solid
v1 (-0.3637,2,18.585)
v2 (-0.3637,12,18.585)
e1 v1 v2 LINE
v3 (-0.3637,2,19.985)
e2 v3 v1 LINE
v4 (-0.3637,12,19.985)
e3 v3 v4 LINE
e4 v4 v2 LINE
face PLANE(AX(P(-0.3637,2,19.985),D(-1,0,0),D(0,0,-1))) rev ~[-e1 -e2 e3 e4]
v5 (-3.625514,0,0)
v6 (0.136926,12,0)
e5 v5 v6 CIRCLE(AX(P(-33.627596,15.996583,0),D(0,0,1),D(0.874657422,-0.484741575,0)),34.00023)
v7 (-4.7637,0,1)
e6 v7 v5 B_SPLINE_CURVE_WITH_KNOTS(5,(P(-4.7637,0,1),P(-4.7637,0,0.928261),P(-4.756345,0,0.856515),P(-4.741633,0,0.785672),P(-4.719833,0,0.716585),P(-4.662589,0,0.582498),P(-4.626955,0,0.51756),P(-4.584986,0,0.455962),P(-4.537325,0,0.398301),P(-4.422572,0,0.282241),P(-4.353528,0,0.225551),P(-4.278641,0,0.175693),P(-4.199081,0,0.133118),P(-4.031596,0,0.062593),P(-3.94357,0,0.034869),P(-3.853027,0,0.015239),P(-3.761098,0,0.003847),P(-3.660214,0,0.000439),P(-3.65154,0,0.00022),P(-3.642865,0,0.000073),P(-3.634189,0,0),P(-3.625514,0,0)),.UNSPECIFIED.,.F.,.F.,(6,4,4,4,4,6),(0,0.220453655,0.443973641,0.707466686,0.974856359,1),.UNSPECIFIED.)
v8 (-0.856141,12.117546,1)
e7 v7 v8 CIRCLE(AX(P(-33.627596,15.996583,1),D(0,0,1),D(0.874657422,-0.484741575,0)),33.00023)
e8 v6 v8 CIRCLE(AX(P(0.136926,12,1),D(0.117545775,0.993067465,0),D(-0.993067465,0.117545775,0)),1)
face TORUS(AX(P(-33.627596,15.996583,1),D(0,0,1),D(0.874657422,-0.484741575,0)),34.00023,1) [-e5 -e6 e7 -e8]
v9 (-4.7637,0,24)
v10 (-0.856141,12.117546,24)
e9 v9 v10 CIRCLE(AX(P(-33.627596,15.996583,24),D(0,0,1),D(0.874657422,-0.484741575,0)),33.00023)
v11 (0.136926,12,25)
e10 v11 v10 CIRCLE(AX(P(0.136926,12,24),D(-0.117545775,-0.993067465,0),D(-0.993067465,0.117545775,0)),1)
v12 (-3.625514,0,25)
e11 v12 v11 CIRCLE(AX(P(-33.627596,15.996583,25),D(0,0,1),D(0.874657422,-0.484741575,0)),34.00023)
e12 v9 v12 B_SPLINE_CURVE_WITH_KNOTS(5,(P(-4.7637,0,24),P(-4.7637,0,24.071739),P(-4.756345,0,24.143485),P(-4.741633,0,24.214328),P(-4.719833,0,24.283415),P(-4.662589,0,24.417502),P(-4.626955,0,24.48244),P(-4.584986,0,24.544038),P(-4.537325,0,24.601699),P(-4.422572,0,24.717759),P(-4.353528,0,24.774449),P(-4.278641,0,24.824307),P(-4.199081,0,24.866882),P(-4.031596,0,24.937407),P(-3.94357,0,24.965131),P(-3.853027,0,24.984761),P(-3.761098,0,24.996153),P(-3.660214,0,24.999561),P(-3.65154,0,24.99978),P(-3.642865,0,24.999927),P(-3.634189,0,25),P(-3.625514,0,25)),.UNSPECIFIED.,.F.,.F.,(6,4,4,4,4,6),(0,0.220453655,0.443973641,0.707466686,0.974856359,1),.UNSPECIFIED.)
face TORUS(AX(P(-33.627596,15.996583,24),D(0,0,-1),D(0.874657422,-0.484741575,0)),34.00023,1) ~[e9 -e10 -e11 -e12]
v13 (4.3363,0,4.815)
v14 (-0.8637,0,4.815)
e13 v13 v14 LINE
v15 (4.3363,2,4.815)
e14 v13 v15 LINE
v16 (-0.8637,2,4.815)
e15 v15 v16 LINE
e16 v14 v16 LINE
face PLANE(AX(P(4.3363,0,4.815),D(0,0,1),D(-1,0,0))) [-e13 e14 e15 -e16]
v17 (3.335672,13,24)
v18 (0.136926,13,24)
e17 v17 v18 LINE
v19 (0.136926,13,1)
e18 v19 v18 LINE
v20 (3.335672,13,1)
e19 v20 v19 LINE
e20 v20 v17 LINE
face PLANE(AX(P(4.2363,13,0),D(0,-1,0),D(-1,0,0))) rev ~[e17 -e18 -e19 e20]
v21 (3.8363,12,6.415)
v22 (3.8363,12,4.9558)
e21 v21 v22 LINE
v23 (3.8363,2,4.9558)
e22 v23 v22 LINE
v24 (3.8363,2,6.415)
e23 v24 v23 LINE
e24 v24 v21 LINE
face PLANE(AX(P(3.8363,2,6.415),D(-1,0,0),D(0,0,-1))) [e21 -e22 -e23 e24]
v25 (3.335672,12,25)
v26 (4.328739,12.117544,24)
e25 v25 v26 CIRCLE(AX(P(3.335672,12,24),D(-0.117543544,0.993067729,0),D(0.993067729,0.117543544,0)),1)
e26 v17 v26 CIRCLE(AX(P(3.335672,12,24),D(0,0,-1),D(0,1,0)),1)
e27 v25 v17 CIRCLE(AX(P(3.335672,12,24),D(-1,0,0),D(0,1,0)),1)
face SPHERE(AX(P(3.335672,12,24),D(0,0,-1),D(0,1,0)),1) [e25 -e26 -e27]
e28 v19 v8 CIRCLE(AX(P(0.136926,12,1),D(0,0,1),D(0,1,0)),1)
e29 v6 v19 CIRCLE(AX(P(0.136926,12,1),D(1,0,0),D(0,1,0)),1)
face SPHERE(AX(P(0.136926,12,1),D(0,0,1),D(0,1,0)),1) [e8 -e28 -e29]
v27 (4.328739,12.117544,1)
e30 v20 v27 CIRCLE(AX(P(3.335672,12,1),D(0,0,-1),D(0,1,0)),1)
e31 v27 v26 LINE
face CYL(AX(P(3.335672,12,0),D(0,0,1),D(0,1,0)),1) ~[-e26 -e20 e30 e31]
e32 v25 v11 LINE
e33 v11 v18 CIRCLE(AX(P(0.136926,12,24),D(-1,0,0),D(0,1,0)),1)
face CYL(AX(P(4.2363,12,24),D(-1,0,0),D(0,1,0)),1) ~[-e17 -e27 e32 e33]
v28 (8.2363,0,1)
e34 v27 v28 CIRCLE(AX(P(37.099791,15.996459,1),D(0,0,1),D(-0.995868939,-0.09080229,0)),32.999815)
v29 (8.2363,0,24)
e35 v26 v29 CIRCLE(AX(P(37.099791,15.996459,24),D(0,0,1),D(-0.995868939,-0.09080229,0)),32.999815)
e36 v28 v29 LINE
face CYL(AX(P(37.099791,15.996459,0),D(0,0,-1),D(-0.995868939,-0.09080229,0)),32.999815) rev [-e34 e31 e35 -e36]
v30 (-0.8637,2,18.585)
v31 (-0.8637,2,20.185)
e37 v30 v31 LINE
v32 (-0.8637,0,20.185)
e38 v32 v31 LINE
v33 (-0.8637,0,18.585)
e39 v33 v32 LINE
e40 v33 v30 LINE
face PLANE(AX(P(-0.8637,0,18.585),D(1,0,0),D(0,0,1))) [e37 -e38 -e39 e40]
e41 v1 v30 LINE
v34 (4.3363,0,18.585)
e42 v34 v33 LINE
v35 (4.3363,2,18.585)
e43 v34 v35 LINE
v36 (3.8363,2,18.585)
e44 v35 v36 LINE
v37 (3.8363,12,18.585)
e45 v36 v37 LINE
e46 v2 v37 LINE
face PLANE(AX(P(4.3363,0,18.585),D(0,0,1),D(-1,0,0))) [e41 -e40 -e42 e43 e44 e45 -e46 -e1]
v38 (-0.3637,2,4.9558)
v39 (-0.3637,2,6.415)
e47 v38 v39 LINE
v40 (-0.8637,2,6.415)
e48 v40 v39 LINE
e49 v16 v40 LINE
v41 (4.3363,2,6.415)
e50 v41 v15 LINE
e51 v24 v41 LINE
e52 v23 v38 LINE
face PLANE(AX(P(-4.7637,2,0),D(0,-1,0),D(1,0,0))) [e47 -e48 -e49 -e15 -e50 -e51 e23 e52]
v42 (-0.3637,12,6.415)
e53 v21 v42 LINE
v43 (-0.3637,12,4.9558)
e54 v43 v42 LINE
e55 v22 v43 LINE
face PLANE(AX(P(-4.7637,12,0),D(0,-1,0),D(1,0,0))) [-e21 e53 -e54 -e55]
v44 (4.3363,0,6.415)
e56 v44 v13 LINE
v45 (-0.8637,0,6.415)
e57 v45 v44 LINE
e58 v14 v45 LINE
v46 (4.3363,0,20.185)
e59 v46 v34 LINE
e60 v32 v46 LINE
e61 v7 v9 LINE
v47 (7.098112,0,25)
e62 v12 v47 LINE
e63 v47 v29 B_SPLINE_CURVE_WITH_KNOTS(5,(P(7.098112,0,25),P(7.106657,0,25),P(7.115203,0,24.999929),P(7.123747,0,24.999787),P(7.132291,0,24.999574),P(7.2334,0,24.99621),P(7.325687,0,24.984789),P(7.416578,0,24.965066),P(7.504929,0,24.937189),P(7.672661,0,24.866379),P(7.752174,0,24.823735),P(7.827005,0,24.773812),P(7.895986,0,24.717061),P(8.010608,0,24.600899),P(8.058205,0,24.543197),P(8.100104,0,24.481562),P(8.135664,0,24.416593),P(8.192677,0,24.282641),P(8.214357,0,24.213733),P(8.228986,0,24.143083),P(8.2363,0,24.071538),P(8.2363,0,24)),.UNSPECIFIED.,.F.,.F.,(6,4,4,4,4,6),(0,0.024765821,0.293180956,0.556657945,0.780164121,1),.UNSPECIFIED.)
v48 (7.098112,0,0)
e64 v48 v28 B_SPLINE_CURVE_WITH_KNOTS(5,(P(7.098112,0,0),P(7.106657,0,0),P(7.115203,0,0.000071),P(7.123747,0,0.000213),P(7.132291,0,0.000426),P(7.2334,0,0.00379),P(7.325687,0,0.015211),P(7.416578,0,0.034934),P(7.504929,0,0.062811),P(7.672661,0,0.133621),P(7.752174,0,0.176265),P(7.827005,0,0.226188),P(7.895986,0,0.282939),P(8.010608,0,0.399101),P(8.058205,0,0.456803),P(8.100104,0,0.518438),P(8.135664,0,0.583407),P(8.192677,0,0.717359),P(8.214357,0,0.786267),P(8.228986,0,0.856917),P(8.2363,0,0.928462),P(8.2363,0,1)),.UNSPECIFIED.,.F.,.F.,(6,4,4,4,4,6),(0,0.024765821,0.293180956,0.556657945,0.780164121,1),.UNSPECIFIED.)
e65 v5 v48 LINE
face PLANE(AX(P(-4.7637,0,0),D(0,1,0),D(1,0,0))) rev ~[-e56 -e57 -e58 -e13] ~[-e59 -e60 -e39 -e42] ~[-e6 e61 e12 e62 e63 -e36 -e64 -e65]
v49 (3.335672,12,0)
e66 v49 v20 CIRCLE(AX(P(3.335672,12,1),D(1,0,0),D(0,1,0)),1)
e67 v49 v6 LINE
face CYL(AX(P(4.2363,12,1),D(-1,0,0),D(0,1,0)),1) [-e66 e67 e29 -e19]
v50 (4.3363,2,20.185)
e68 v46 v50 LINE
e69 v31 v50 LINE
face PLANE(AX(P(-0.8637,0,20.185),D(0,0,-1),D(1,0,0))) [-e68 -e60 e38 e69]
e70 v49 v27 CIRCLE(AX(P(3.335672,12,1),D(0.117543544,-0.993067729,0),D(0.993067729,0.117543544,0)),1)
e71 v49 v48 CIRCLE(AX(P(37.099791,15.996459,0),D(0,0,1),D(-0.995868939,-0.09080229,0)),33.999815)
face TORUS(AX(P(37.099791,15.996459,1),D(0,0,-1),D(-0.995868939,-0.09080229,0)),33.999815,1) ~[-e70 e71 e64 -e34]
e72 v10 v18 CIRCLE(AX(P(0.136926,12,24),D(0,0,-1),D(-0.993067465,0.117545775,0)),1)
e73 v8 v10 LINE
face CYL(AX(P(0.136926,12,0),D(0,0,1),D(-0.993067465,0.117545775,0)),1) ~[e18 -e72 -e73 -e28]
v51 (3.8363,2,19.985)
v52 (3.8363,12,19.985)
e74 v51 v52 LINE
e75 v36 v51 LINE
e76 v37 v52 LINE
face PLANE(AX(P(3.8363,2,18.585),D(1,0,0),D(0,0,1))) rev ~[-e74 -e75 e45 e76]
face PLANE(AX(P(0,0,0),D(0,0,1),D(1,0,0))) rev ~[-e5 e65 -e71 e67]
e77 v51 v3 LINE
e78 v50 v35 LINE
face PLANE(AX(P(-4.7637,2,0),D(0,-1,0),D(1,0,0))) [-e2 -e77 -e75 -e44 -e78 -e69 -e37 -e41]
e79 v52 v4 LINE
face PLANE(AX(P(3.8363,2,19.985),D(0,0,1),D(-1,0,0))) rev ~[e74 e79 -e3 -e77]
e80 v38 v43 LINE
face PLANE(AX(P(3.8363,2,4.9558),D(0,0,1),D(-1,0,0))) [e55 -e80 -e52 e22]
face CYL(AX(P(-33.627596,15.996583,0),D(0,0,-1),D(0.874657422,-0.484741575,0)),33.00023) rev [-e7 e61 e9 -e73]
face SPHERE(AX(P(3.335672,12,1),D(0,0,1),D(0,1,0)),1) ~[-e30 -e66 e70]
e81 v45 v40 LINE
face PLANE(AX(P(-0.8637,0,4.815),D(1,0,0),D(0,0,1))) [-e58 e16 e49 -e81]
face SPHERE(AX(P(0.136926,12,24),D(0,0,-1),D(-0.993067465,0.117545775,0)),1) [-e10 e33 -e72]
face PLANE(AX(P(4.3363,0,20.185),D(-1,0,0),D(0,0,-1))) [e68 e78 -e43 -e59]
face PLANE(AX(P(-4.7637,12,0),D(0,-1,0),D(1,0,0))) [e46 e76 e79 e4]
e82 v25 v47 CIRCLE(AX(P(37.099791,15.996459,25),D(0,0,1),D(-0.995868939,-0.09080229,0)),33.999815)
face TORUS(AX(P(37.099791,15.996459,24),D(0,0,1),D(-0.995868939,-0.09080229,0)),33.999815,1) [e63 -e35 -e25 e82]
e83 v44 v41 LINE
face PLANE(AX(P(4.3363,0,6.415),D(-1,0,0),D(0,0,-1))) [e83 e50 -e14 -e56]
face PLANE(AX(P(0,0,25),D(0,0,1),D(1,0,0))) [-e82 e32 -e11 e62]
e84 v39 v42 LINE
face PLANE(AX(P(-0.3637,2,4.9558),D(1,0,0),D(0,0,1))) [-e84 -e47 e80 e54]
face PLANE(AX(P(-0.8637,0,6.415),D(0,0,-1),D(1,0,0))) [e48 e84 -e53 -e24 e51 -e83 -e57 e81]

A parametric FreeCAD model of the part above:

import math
import FreeCAD as App
import Part
import Sketcher

V = App.Vector
Q = App.Units.Quantity


def edges_at(feature, points):
    """Names of the edges that pass closest to the given points."""
    edges = feature.Shape.Edges
    near = lambda p: min(range(len(edges)), key=lambda i: edges[i].distToShape(Part.Vertex(*p))[0])
    return sorted({f"Edge{near(p) + 1}" for p in points})

doc = App.newDocument("Part")
body = doc.addObject("PartDesign::Body", "Body")

sketch1 = doc.addObject("Sketcher::SketchObject", "Sketch")
body.addObject(sketch1)
sketch1.AttachmentSupport = (doc.XY_Plane, [""])
sketch1.MapMode = "FlatFace"
sketch1.addGeometry([
    Part.ArcOfCircle(Part.Circle(V(-34, 16, 0), V(0, 0, 1), 33), math.radians(-29), math.radians(-5)),
    Part.LineSegment(V(-5, 0, 0), V(8, 0, 0)),
    Part.ArcOfCircle(Part.Circle(V(37, 16, 0), V(0, 0, 1), 33), math.radians(-175), math.radians(-151)),
    Part.LineSegment(V(4, 13, 0), V(-1, 13, 0)),
], False)
sketch1.addConstraint([
    Sketcher.Constraint("Coincident", 0, 1, 1, 1),
    Sketcher.Constraint("Coincident", 1, 2, 2, 2),
    Sketcher.Constraint("Coincident", 2, 1, 3, 1),
    Sketcher.Constraint("Coincident", 3, 2, 0, 2),
    Sketcher.Constraint("Horizontal", 1),
    Sketcher.Constraint("Horizontal", 3),
    Sketcher.Constraint("Equal", 0, 2),
    Sketcher.Constraint("PointOnObject", 0, 1, -1),
    Sketcher.Constraint("Horizontal", 0, 3, 2, 3),
    Sketcher.Constraint("Radius", 0, Q("33 mm")),
    Sketcher.Constraint("DistanceX", 1, 1, 1, 2, Q("13 mm")),
    Sketcher.Constraint("DistanceY", -1, 1, 2, 1, Q("13 mm")),
    Sketcher.Constraint("DistanceX", 2, 1, 1, 2, Q("4 mm")),
    Sketcher.Constraint("DistanceX", -1, 1, 2, 3, Q("37.1 mm")),
])
pad1 = doc.addObject("PartDesign::Pad", "Pad")
body.addObject(pad1)
pad1.Profile = sketch1
pad1.Length = 25

sketch2 = doc.addObject("Sketcher::SketchObject", "Sketch001")
body.addObject(sketch2)
sketch2.AttachmentSupport = (doc.XZ_Plane, [""])
sketch2.MapMode = "FlatFace"
sketch2.addGeometry([
    Part.LineSegment(V(4.3, 20.2, 0), V(-0.9, 20.2, 0)),
    Part.LineSegment(V(-0.9, 20.2, 0), V(-0.9, 18.6, 0)),
    Part.LineSegment(V(-0.9, 18.6, 0), V(4.3, 18.6, 0)),
    Part.LineSegment(V(4.3, 18.6, 0), V(4.3, 20.2, 0)),
    Part.LineSegment(V(4.3, 6.4, 0), V(-0.9, 6.4, 0)),
    Part.LineSegment(V(-0.9, 6.4, 0), V(-0.9, 4.8, 0)),
    Part.LineSegment(V(-0.9, 4.8, 0), V(4.3, 4.8, 0)),
    Part.LineSegment(V(4.3, 4.8, 0), V(4.3, 6.4, 0)),
], False)
sketch2.addConstraint([
    Sketcher.Constraint("Coincident", 0, 2, 1, 1),
    Sketcher.Constraint("Coincident", 1, 2, 2, 1),
    Sketcher.Constraint("Coincident", 2, 2, 3, 1),
    Sketcher.Constraint("Coincident", 3, 2, 0, 1),
    Sketcher.Constraint("Coincident", 4, 2, 5, 1),
    Sketcher.Constraint("Coincident", 5, 2, 6, 1),
    Sketcher.Constraint("Coincident", 6, 2, 7, 1),
    Sketcher.Constraint("Coincident", 7, 2, 4, 1),
    Sketcher.Constraint("Horizontal", 0),
    Sketcher.Constraint("Vertical", 1),
    Sketcher.Constraint("Horizontal", 2),
    Sketcher.Constraint("Vertical", 3),
    Sketcher.Constraint("Horizontal", 4),
    Sketcher.Constraint("Vertical", 5),
    Sketcher.Constraint("Horizontal", 6),
    Sketcher.Constraint("Vertical", 7),
    Sketcher.Constraint("Vertical", 1, 2, 4, 2),
    Sketcher.Constraint("Vertical", 3, 2, 6, 2),
    Sketcher.Constraint("Equal", 3, 5),
    Sketcher.Constraint("DistanceX", 0, 2, 0, 1, Q("5.2 mm")),
    Sketcher.Constraint("DistanceY", 1, 2, 1, 1, Q("1.6 mm")),
    Sketcher.Constraint("DistanceY", 5, 2, 0, 2, Q("15.37 mm")),
    Sketcher.Constraint("DistanceY", -1, 1, 5, 2, Q("4.815 mm")),
    Sketcher.Constraint("DistanceX", 0, 2, -1, 1, Q("0.8637 mm")),
])
pocket1 = doc.addObject("PartDesign::Pocket", "Pocket")
body.addObject(pocket1)
pocket1.Profile = sketch2
pocket1.Length = 2
doc.recompute()

fillet = doc.addObject("PartDesign::Fillet", "Fillet")
body.addObject(fillet)
fillet.Base = (pocket1, edges_at(pocket1, [
    (4.236, 13, 12.5),
    (1.736, 13, 25),
    (-0.764, 13, 12.5),
    (1.736, 13, 0),
    (5.559, 6.292, 25),
    (-2.087, 6.292, 25),
    (5.559, 6.292, 0),
    (-2.087, 6.292, 0),
]))
fillet.Radius = 1

sketch3 = doc.addObject("Sketcher::SketchObject", "Sketch002")
body.addObject(sketch3)
sketch3.AttachmentSupport = (doc.XZ_Plane, [""])
sketch3.MapMode = "FlatFace"
sketch3.AttachmentOffset = App.Placement(V(0, 0, -2), App.Rotation())
sketch3.addGeometry([
    Part.LineSegment(V(-0.4, 20, 0), V(-0.4, 18.6, 0)),
    Part.LineSegment(V(-0.4, 18.6, 0), V(3.8, 18.6, 0)),
    Part.LineSegment(V(3.8, 18.6, 0), V(3.8, 20, 0)),
    Part.LineSegment(V(3.8, 20, 0), V(-0.4, 20, 0)),
    Part.LineSegment(V(3.8, 5, 0), V(3.8, 6.4, 0)),
    Part.LineSegment(V(3.8, 6.4, 0), V(-0.4, 6.4, 0)),
    Part.LineSegment(V(-0.4, 6.4, 0), V(-0.4, 5, 0)),
    Part.LineSegment(V(-0.4, 5, 0), V(3.8, 5, 0)),
], False)
sketch3.addConstraint([
    Sketcher.Constraint("Coincident", 0, 2, 1, 1),
    Sketcher.Constraint("Coincident", 1, 2, 2, 1),
    Sketcher.Constraint("Coincident", 2, 2, 3, 1),
    Sketcher.Constraint("Coincident", 3, 2, 0, 1),
    Sketcher.Constraint("Coincident", 4, 2, 5, 1),
    Sketcher.Constraint("Coincident", 5, 2, 6, 1),
    Sketcher.Constraint("Coincident", 6, 2, 7, 1),
    Sketcher.Constraint("Coincident", 7, 2, 4, 1),
    Sketcher.Constraint("Vertical", 0),
    Sketcher.Constraint("Horizontal", 1),
    Sketcher.Constraint("Vertical", 2),
    Sketcher.Constraint("Horizontal", 3),
    Sketcher.Constraint("Vertical", 4),
    Sketcher.Constraint("Horizontal", 5),
    Sketcher.Constraint("Vertical", 6),
    Sketcher.Constraint("Horizontal", 7),
    Sketcher.Constraint("Vertical", 2, 2, 4, 2),
    Sketcher.Constraint("Vertical", 3, 2, 5, 2),
    Sketcher.Constraint("DistanceY", 0, 2, 0, 1, Q("1.4 mm")),
    Sketcher.Constraint("DistanceX", 1, 1, 1, 2, Q("4.2 mm")),
    Sketcher.Constraint("DistanceY", 4, 2, 1, 2, Q("12.17 mm")),
    Sketcher.Constraint("DistanceY", 4, 1, 4, 2, Q("1.4592 mm")),
    Sketcher.Constraint("DistanceY", -1, 1, 0, 2, Q("18.585 mm")),
    Sketcher.Constraint("DistanceX", 0, 2, -1, 1, Q("0.3637 mm")),
])
pocket2 = doc.addObject("PartDesign::Pocket", "Pocket001")
body.addObject(pocket2)
pocket2.Profile = sketch3
pocket2.Length = 10

doc.recompute()
